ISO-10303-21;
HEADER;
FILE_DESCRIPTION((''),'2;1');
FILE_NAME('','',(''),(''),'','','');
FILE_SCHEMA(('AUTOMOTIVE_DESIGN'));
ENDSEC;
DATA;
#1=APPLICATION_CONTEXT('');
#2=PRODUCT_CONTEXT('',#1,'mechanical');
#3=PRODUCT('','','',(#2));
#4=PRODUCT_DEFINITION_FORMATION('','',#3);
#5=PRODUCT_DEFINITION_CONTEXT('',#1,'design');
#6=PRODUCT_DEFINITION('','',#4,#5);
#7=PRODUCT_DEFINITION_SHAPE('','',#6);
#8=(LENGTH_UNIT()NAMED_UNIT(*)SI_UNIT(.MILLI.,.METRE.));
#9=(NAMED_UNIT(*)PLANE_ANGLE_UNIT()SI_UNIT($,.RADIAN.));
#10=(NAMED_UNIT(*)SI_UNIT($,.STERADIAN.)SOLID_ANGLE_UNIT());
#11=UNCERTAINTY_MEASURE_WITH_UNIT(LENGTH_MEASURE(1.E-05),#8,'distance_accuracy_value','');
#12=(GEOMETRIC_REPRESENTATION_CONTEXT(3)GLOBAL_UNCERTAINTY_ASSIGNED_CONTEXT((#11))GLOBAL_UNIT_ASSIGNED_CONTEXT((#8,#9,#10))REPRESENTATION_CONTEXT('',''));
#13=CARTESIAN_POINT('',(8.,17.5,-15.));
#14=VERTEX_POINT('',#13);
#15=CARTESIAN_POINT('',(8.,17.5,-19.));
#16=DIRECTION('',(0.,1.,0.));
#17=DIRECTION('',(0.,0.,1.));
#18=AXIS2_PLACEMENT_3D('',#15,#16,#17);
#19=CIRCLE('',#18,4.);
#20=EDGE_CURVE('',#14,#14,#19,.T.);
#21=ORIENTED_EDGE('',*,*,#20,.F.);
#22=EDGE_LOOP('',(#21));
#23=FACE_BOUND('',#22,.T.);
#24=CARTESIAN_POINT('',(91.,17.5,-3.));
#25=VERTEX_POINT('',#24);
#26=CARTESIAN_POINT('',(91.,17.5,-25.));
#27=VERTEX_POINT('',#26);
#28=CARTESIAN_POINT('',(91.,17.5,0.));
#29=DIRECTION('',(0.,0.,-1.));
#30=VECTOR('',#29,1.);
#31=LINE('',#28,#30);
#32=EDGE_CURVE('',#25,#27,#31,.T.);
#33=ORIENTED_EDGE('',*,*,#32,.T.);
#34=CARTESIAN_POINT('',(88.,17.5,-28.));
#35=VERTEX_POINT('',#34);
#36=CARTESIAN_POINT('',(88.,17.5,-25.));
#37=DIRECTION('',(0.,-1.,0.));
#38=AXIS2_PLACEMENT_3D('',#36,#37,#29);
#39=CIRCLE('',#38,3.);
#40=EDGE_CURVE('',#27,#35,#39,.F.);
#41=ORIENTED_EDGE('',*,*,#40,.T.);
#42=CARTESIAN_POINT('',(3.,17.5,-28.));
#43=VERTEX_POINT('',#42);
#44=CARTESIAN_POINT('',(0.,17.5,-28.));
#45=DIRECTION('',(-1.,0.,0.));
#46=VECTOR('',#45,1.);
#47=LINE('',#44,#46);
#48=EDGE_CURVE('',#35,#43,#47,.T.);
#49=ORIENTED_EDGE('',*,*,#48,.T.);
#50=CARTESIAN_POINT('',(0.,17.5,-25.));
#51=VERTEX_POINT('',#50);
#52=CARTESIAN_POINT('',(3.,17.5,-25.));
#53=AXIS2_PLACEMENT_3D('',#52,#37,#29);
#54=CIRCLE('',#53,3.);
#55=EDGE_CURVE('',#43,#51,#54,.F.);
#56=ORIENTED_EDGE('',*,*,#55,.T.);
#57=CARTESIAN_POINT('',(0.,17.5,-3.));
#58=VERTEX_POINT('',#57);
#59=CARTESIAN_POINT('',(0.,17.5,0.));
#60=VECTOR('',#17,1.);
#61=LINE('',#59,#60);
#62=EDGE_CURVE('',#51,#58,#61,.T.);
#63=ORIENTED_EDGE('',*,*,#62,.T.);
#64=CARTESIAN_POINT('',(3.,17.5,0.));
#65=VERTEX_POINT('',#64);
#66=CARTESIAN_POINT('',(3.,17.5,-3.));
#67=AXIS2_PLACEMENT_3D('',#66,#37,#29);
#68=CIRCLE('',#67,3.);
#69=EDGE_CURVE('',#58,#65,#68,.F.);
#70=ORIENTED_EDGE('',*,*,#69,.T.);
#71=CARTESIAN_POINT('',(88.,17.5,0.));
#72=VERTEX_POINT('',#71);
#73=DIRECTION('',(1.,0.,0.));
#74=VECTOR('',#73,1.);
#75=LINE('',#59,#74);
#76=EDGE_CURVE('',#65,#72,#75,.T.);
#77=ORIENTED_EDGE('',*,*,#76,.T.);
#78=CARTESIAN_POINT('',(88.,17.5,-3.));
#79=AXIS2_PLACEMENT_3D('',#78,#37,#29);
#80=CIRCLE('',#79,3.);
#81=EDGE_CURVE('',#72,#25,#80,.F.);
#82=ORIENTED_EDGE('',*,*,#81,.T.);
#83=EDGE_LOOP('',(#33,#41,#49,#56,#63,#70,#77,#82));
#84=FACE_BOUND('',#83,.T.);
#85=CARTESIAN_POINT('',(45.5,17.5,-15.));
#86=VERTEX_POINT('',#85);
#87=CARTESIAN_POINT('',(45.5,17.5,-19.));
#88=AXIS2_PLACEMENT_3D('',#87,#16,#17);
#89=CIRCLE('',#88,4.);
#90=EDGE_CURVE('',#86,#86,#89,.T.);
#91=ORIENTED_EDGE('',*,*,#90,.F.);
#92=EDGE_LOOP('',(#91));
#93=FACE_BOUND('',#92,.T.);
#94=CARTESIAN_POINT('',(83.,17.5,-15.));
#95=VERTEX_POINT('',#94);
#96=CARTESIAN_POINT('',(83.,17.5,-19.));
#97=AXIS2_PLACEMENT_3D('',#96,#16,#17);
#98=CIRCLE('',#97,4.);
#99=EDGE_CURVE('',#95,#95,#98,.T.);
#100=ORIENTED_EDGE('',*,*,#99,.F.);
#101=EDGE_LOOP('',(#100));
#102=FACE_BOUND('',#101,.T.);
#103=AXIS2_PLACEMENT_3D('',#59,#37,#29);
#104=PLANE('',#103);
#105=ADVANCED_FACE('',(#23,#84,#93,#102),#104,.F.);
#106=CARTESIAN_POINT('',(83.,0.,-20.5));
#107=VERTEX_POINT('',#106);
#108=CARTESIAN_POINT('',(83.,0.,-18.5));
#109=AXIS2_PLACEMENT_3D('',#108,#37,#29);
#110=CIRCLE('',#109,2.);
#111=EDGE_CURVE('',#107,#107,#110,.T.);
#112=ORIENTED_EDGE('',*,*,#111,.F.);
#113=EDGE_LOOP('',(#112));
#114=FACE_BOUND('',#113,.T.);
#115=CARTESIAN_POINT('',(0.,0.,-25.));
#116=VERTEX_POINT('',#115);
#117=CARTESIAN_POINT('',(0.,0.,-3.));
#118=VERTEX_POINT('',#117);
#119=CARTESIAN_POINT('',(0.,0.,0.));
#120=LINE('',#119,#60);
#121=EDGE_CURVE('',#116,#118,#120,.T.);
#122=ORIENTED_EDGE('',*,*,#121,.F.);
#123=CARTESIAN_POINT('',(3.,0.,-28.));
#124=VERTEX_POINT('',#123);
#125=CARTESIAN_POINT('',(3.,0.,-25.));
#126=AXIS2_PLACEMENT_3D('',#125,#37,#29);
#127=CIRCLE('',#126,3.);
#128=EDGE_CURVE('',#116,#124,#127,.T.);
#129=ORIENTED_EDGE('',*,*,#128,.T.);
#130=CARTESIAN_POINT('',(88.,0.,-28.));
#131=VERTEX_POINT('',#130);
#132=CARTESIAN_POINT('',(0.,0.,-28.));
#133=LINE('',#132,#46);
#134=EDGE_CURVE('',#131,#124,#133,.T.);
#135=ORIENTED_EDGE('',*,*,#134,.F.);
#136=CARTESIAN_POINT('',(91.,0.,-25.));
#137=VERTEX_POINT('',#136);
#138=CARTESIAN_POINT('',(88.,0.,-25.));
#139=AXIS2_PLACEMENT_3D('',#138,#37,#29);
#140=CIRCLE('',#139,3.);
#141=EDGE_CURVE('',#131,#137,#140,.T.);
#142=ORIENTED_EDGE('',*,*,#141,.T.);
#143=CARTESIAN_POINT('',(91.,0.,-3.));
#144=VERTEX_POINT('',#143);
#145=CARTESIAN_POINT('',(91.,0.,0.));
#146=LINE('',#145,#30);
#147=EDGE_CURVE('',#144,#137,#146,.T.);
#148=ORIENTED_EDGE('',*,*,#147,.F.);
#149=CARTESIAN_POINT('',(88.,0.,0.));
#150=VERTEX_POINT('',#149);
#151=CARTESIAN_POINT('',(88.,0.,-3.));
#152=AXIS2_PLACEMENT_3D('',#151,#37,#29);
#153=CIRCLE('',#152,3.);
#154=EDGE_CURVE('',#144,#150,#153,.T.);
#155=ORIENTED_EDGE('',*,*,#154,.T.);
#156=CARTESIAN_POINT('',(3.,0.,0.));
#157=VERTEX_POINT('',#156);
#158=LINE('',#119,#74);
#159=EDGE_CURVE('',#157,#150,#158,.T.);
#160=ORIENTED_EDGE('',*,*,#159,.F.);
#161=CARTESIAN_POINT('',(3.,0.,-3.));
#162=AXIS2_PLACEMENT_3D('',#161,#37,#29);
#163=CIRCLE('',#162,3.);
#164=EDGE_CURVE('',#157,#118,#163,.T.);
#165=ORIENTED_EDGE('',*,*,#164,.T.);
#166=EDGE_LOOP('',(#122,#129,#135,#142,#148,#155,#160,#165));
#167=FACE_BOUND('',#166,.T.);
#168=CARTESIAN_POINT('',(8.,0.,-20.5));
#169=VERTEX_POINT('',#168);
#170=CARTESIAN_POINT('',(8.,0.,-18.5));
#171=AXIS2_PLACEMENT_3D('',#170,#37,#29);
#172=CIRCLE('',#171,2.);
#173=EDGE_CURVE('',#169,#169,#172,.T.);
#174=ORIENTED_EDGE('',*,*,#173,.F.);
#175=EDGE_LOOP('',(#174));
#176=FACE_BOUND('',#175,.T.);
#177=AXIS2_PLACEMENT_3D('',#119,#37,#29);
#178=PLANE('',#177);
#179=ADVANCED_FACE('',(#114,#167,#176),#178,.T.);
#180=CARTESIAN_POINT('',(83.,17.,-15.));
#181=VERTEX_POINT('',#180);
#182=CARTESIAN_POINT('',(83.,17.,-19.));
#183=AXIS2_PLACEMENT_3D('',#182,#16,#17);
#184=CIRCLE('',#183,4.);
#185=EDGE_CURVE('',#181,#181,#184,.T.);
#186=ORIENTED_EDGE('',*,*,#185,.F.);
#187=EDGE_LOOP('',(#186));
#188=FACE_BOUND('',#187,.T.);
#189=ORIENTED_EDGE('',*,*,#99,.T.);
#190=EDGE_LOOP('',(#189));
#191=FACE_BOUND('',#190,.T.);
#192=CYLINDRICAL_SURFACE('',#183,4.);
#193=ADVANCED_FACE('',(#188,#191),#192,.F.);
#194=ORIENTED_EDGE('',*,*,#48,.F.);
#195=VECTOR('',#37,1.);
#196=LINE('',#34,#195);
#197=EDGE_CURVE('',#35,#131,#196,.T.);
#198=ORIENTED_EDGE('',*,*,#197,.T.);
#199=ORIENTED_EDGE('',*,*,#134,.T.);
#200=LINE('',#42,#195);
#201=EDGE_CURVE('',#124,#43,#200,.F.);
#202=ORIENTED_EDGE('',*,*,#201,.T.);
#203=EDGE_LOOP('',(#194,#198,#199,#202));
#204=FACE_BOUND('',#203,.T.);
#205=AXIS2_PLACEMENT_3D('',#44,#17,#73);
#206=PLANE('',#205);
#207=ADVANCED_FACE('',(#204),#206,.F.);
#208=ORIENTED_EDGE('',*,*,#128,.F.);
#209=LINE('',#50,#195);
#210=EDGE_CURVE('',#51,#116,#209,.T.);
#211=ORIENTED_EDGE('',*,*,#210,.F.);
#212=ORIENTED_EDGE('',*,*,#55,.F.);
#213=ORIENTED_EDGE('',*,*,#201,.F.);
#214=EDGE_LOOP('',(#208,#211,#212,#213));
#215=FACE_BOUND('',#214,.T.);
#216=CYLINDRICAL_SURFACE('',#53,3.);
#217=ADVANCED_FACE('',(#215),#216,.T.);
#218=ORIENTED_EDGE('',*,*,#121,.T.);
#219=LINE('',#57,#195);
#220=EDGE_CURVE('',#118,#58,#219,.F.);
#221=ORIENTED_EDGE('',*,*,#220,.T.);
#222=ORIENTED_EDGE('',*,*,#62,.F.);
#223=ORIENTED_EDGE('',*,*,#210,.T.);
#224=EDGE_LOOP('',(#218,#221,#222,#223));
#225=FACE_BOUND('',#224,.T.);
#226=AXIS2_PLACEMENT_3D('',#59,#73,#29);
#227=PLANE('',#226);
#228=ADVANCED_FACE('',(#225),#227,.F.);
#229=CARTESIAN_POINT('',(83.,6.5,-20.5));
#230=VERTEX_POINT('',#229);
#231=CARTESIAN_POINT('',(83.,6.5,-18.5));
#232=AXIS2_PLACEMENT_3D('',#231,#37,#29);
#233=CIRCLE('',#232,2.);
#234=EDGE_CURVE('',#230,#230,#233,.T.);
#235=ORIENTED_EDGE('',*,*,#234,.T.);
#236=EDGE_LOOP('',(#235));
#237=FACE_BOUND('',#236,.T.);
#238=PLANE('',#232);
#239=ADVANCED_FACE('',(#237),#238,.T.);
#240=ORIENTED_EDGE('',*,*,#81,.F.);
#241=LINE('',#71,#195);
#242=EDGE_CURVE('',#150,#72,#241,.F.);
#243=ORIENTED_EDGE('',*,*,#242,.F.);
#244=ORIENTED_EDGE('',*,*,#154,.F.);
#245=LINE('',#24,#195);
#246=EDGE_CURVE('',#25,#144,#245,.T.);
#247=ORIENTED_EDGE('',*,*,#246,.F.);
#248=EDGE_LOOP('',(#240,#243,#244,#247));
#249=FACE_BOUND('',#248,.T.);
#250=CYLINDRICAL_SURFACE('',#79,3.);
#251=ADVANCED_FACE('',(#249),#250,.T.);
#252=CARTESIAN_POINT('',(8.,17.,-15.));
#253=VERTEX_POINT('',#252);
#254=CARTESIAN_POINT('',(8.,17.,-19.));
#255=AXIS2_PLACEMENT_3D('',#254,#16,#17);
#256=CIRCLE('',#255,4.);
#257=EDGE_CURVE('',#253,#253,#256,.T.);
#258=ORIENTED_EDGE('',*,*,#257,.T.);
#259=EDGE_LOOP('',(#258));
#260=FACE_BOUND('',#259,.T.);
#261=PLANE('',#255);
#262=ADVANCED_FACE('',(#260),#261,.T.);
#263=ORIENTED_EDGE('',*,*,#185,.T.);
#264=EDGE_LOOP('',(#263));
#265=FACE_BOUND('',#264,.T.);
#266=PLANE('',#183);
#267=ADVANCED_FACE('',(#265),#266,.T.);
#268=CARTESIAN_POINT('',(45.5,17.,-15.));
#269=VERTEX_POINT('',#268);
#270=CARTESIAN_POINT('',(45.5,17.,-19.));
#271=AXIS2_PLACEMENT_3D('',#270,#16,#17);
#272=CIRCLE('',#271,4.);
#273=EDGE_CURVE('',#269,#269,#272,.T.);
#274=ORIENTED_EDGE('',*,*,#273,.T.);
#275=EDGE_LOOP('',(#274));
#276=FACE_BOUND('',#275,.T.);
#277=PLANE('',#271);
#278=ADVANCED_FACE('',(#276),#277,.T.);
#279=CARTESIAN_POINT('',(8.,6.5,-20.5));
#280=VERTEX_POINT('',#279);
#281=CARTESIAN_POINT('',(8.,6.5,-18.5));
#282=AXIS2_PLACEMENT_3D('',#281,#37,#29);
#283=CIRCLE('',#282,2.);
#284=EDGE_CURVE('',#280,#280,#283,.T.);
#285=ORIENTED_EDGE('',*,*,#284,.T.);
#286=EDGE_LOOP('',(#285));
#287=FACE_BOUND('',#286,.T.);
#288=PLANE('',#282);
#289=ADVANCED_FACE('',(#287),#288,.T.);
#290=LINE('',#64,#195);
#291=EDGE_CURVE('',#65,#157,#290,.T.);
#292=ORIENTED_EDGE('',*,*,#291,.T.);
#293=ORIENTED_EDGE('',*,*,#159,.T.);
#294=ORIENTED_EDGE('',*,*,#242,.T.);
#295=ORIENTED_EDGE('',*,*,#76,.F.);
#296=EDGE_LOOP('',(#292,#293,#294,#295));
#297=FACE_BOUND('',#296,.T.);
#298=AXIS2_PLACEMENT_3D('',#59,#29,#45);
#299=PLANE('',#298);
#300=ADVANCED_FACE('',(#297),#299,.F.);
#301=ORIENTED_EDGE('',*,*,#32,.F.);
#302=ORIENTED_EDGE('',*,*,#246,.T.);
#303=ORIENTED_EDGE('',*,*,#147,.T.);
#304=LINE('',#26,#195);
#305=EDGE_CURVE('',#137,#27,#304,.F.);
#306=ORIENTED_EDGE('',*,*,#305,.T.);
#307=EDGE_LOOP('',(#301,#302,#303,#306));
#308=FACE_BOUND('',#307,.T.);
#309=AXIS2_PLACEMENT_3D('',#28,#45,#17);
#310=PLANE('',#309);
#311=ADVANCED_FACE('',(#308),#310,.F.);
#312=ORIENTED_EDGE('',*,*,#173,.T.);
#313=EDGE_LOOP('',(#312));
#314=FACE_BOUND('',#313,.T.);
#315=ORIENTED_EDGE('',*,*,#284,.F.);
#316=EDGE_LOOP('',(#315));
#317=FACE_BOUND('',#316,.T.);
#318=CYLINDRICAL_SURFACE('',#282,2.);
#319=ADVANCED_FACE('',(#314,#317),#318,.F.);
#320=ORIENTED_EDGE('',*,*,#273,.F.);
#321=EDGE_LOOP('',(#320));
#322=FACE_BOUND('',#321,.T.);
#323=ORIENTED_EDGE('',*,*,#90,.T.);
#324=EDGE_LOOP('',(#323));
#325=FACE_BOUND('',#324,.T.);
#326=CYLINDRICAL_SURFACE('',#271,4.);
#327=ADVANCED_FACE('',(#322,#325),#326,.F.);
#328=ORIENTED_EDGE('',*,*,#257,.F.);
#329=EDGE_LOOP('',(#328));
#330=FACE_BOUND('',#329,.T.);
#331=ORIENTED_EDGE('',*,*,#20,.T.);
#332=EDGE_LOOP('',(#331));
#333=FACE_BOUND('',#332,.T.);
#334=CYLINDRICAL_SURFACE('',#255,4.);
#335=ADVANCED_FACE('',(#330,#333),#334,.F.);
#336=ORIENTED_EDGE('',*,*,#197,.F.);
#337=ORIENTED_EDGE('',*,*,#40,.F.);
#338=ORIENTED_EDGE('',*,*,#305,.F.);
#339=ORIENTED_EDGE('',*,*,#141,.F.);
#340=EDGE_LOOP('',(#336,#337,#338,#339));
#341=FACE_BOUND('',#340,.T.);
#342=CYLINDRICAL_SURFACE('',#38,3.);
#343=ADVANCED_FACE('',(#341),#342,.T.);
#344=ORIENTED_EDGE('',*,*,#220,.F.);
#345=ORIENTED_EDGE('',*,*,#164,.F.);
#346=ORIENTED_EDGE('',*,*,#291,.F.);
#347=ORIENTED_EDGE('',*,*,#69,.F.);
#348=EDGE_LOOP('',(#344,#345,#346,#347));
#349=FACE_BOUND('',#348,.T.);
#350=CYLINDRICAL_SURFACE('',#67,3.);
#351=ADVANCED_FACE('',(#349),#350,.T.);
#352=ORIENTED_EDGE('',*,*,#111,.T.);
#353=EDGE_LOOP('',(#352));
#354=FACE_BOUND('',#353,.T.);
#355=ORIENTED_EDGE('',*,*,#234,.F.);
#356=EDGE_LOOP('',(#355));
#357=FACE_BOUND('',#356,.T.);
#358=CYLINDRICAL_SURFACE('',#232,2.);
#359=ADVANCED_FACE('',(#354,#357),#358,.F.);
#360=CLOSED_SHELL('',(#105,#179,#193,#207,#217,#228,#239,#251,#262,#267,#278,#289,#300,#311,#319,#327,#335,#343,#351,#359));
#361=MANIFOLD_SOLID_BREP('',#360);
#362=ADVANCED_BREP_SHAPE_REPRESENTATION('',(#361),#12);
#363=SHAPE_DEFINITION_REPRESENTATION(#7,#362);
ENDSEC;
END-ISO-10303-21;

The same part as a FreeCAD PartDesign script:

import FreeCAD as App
import Part
import Sketcher
from FreeCAD import Vector
Q = App.Units.Quantity


def edges_at(feature, points):
    """Names of the edges that pass closest to the given points."""
    edges = feature.Shape.Edges
    near = lambda p: min(range(len(edges)), key=lambda i: edges[i].distToShape(Part.Vertex(*p))[0])
    return sorted({f"Edge{near(p) + 1}" for p in points})

doc = App.newDocument("Part")
body = doc.addObject("PartDesign::Body", "Body")

# Sketch on XZ plane
sketch1 = body.newObject("Sketcher::SketchObject", "Sketch")
sketch1.AttachmentSupport = (doc.getObject("XZ_Plane"), [""])
sketch1.MapMode = "FlatFace"
sketch1.addGeometry(Part.LineSegment(Vector(0, -28, 0), Vector(0, 0, 0)), False)
sketch1.addGeometry(Part.LineSegment(Vector(0, 0, 0), Vector(91, 0, 0)), False)
sketch1.addGeometry(Part.LineSegment(Vector(91, 0, 0), Vector(91, -28, 0)), False)
sketch1.addGeometry(Part.LineSegment(Vector(91, -28, 0), Vector(0, -28, 0)), False)
sketch1.addConstraint(Sketcher.Constraint("Coincident", 0, 2, 1, 1))
sketch1.addConstraint(Sketcher.Constraint("Coincident", 1, 2, 2, 1))
sketch1.addConstraint(Sketcher.Constraint("Coincident", 2, 2, 3, 1))
sketch1.addConstraint(Sketcher.Constraint("Coincident", 3, 2, 0, 1))
sketch1.addConstraint(Sketcher.Constraint("Vertical", 0))
sketch1.addConstraint(Sketcher.Constraint("Horizontal", 1))
sketch1.addConstraint(Sketcher.Constraint("Vertical", 2))
sketch1.addConstraint(Sketcher.Constraint("Horizontal", 3))
sketch1.addConstraint(Sketcher.Constraint("Coincident", 0, 2, -1, 1))
sketch1.addConstraint(Sketcher.Constraint("DistanceX", 1, 1, 1, 2, Q("91 mm")))
sketch1.addConstraint(Sketcher.Constraint("DistanceY", 0, 1, 0, 2, Q("28 mm")))
pad1 = body.newObject("PartDesign::Pad", "Pad")
pad1.Profile = sketch1
pad1.Length = 17.5
pad1.Reversed = True

# Sketch on XZ plane
sketch2 = body.newObject("Sketcher::SketchObject", "Sketch001")
sketch2.AttachmentSupport = (doc.getObject("XZ_Plane"), [""])
sketch2.MapMode = "FlatFace"
sketch2.AttachmentOffset = App.Placement(Vector(0, 0, -17.5), App.Rotation())
sketch2.addGeometry(Part.Circle(Vector(45.5, -19, 0), Vector(0, 0, 1), 4), False)
sketch2.addGeometry(Part.Circle(Vector(8, -19, 0), Vector(0, 0, 1), 4), False)
sketch2.addGeometry(Part.Circle(Vector(83, -19, 0), Vector(0, 0, 1), 4), False)
sketch2.addConstraint(Sketcher.Constraint("Equal", 0, 1))
sketch2.addConstraint(Sketcher.Constraint("Equal", 1, 2))
sketch2.addConstraint(Sketcher.Constraint("Horizontal", 0, 3, 1, 3))
sketch2.addConstraint(Sketcher.Constraint("Horizontal", 1, 3, 2, 3))
sketch2.addConstraint(Sketcher.Constraint("Diameter", 0, Q("8 mm")))
sketch2.addConstraint(Sketcher.Constraint("DistanceY", 0, 3, -1, 1, Q("19 mm")))
sketch2.addConstraint(Sketcher.Constraint("DistanceX", -1, 1, 1, 3, Q("8 mm")))
sketch2.addConstraint(Sketcher.Constraint("DistanceX", -1, 1, 2, 3, Q("83 mm")))
sketch2.addConstraint(Sketcher.Constraint("DistanceX", -1, 1, 0, 3, Q("45.5 mm")))
pocket1 = body.newObject("PartDesign::Pocket", "Pocket")
pocket1.Profile = sketch2
pocket1.Length = 0.5
pocket1.Reversed = True

# Sketch on XZ plane
sketch3 = body.newObject("Sketcher::SketchObject", "Sketch002")
sketch3.AttachmentSupport = (doc.getObject("XZ_Plane"), [""])
sketch3.MapMode = "FlatFace"
sketch3.addGeometry(Part.Circle(Vector(83, -18.5, 0), Vector(0, 0, 1), 2), False)
sketch3.addGeometry(Part.Circle(Vector(8, -18.5, 0), Vector(0, 0, 1), 2), False)
sketch3.addConstraint(Sketcher.Constraint("Equal", 0, 1))
sketch3.addConstraint(Sketcher.Constraint("Horizontal", 0, 3, 1, 3))
sketch3.addConstraint(Sketcher.Constraint("Diameter", 0, Q("4 mm")))
sketch3.addConstraint(Sketcher.Constraint("DistanceX", -1, 1, 0, 3, Q("83 mm")))
sketch3.addConstraint(Sketcher.Constraint("DistanceX", -1, 1, 1, 3, Q("8 mm")))
sketch3.addConstraint(Sketcher.Constraint("DistanceY", 0, 3, -1, 1, Q("18.5 mm")))
pocket2 = body.newObject("PartDesign::Pocket", "Pocket001")
pocket2.Profile = sketch3
pocket2.Length = 6.5
doc.recompute()

fillet = body.newObject("PartDesign::Fillet", "Fillet")
fillet.Base = (pocket2, edges_at(pocket2, [
    (0, 8.75, -28),
    (91, 8.75, -28),
    (91, 8.75, 0),
    (0, 8.75, 0),
]))
fillet.Radius = 3

doc.recompute()
